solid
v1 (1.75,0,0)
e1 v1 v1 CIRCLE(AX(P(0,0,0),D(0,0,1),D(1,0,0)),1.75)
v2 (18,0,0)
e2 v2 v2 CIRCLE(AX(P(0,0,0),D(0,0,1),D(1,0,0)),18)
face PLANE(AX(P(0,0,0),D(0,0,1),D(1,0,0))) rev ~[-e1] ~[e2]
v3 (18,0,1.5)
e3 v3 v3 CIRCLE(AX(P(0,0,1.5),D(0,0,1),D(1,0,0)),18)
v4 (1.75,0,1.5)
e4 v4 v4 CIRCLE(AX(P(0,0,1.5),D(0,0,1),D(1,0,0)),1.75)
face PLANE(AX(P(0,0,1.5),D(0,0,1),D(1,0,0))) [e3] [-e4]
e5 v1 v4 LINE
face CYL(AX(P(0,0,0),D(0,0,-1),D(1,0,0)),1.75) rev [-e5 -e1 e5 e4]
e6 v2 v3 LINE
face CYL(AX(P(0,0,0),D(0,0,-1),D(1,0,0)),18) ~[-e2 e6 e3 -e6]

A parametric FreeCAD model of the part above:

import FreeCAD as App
import Part
import Sketcher
from FreeCAD import Vector
Q = App.Units.Quantity

doc = App.newDocument("Part")
params = doc.addObject("Spreadsheet::Sheet", "Params")
for row, (alias, value) in enumerate([
    ("sketch1_diameter", "36 mm"),
    ("sketch1_diameter2", "3.5 mm"),
    ("pad1_length", "1.5 mm"),
], start=1):
    params.set(f"A{row}", alias)
    params.set(f"B{row}", "=" + value)
    params.setAlias(f"B{row}", alias)

body = doc.addObject("PartDesign::Body", "Body")

# Sketch on XY plane
sketch1 = body.newObject("Sketcher::SketchObject", "Sketch")
sketch1.AttachmentSupport = (doc.getObject("XY_Plane"), [""])
sketch1.MapMode = "FlatFace"
sketch1.addGeometry([
    Part.Circle(Vector(0, 0, 0), Vector(0, 0, 1), 18),
    Part.Circle(Vector(0, 0, 0), Vector(0, 0, 1), 1.8),
], False)
sketch1.addConstraint([
    Sketcher.Constraint("Coincident", 0, 3, -1, 1),
    Sketcher.Constraint("Coincident", 1, 3, -1, 1),
    Sketcher.Constraint("Diameter", 0, Q("36 mm")),
    Sketcher.Constraint("Diameter", 1, Q("3.5 mm")),
])
sketch1.setExpression("Constraints[2]", "Params.sketch1_diameter")
sketch1.setExpression("Constraints[3]", "Params.sketch1_diameter2")
pad1 = body.newObject("PartDesign::Pad", "Pad")
pad1.Profile = sketch1
pad1.setExpression("Length", "Params.pad1_length")

doc.recompute()
